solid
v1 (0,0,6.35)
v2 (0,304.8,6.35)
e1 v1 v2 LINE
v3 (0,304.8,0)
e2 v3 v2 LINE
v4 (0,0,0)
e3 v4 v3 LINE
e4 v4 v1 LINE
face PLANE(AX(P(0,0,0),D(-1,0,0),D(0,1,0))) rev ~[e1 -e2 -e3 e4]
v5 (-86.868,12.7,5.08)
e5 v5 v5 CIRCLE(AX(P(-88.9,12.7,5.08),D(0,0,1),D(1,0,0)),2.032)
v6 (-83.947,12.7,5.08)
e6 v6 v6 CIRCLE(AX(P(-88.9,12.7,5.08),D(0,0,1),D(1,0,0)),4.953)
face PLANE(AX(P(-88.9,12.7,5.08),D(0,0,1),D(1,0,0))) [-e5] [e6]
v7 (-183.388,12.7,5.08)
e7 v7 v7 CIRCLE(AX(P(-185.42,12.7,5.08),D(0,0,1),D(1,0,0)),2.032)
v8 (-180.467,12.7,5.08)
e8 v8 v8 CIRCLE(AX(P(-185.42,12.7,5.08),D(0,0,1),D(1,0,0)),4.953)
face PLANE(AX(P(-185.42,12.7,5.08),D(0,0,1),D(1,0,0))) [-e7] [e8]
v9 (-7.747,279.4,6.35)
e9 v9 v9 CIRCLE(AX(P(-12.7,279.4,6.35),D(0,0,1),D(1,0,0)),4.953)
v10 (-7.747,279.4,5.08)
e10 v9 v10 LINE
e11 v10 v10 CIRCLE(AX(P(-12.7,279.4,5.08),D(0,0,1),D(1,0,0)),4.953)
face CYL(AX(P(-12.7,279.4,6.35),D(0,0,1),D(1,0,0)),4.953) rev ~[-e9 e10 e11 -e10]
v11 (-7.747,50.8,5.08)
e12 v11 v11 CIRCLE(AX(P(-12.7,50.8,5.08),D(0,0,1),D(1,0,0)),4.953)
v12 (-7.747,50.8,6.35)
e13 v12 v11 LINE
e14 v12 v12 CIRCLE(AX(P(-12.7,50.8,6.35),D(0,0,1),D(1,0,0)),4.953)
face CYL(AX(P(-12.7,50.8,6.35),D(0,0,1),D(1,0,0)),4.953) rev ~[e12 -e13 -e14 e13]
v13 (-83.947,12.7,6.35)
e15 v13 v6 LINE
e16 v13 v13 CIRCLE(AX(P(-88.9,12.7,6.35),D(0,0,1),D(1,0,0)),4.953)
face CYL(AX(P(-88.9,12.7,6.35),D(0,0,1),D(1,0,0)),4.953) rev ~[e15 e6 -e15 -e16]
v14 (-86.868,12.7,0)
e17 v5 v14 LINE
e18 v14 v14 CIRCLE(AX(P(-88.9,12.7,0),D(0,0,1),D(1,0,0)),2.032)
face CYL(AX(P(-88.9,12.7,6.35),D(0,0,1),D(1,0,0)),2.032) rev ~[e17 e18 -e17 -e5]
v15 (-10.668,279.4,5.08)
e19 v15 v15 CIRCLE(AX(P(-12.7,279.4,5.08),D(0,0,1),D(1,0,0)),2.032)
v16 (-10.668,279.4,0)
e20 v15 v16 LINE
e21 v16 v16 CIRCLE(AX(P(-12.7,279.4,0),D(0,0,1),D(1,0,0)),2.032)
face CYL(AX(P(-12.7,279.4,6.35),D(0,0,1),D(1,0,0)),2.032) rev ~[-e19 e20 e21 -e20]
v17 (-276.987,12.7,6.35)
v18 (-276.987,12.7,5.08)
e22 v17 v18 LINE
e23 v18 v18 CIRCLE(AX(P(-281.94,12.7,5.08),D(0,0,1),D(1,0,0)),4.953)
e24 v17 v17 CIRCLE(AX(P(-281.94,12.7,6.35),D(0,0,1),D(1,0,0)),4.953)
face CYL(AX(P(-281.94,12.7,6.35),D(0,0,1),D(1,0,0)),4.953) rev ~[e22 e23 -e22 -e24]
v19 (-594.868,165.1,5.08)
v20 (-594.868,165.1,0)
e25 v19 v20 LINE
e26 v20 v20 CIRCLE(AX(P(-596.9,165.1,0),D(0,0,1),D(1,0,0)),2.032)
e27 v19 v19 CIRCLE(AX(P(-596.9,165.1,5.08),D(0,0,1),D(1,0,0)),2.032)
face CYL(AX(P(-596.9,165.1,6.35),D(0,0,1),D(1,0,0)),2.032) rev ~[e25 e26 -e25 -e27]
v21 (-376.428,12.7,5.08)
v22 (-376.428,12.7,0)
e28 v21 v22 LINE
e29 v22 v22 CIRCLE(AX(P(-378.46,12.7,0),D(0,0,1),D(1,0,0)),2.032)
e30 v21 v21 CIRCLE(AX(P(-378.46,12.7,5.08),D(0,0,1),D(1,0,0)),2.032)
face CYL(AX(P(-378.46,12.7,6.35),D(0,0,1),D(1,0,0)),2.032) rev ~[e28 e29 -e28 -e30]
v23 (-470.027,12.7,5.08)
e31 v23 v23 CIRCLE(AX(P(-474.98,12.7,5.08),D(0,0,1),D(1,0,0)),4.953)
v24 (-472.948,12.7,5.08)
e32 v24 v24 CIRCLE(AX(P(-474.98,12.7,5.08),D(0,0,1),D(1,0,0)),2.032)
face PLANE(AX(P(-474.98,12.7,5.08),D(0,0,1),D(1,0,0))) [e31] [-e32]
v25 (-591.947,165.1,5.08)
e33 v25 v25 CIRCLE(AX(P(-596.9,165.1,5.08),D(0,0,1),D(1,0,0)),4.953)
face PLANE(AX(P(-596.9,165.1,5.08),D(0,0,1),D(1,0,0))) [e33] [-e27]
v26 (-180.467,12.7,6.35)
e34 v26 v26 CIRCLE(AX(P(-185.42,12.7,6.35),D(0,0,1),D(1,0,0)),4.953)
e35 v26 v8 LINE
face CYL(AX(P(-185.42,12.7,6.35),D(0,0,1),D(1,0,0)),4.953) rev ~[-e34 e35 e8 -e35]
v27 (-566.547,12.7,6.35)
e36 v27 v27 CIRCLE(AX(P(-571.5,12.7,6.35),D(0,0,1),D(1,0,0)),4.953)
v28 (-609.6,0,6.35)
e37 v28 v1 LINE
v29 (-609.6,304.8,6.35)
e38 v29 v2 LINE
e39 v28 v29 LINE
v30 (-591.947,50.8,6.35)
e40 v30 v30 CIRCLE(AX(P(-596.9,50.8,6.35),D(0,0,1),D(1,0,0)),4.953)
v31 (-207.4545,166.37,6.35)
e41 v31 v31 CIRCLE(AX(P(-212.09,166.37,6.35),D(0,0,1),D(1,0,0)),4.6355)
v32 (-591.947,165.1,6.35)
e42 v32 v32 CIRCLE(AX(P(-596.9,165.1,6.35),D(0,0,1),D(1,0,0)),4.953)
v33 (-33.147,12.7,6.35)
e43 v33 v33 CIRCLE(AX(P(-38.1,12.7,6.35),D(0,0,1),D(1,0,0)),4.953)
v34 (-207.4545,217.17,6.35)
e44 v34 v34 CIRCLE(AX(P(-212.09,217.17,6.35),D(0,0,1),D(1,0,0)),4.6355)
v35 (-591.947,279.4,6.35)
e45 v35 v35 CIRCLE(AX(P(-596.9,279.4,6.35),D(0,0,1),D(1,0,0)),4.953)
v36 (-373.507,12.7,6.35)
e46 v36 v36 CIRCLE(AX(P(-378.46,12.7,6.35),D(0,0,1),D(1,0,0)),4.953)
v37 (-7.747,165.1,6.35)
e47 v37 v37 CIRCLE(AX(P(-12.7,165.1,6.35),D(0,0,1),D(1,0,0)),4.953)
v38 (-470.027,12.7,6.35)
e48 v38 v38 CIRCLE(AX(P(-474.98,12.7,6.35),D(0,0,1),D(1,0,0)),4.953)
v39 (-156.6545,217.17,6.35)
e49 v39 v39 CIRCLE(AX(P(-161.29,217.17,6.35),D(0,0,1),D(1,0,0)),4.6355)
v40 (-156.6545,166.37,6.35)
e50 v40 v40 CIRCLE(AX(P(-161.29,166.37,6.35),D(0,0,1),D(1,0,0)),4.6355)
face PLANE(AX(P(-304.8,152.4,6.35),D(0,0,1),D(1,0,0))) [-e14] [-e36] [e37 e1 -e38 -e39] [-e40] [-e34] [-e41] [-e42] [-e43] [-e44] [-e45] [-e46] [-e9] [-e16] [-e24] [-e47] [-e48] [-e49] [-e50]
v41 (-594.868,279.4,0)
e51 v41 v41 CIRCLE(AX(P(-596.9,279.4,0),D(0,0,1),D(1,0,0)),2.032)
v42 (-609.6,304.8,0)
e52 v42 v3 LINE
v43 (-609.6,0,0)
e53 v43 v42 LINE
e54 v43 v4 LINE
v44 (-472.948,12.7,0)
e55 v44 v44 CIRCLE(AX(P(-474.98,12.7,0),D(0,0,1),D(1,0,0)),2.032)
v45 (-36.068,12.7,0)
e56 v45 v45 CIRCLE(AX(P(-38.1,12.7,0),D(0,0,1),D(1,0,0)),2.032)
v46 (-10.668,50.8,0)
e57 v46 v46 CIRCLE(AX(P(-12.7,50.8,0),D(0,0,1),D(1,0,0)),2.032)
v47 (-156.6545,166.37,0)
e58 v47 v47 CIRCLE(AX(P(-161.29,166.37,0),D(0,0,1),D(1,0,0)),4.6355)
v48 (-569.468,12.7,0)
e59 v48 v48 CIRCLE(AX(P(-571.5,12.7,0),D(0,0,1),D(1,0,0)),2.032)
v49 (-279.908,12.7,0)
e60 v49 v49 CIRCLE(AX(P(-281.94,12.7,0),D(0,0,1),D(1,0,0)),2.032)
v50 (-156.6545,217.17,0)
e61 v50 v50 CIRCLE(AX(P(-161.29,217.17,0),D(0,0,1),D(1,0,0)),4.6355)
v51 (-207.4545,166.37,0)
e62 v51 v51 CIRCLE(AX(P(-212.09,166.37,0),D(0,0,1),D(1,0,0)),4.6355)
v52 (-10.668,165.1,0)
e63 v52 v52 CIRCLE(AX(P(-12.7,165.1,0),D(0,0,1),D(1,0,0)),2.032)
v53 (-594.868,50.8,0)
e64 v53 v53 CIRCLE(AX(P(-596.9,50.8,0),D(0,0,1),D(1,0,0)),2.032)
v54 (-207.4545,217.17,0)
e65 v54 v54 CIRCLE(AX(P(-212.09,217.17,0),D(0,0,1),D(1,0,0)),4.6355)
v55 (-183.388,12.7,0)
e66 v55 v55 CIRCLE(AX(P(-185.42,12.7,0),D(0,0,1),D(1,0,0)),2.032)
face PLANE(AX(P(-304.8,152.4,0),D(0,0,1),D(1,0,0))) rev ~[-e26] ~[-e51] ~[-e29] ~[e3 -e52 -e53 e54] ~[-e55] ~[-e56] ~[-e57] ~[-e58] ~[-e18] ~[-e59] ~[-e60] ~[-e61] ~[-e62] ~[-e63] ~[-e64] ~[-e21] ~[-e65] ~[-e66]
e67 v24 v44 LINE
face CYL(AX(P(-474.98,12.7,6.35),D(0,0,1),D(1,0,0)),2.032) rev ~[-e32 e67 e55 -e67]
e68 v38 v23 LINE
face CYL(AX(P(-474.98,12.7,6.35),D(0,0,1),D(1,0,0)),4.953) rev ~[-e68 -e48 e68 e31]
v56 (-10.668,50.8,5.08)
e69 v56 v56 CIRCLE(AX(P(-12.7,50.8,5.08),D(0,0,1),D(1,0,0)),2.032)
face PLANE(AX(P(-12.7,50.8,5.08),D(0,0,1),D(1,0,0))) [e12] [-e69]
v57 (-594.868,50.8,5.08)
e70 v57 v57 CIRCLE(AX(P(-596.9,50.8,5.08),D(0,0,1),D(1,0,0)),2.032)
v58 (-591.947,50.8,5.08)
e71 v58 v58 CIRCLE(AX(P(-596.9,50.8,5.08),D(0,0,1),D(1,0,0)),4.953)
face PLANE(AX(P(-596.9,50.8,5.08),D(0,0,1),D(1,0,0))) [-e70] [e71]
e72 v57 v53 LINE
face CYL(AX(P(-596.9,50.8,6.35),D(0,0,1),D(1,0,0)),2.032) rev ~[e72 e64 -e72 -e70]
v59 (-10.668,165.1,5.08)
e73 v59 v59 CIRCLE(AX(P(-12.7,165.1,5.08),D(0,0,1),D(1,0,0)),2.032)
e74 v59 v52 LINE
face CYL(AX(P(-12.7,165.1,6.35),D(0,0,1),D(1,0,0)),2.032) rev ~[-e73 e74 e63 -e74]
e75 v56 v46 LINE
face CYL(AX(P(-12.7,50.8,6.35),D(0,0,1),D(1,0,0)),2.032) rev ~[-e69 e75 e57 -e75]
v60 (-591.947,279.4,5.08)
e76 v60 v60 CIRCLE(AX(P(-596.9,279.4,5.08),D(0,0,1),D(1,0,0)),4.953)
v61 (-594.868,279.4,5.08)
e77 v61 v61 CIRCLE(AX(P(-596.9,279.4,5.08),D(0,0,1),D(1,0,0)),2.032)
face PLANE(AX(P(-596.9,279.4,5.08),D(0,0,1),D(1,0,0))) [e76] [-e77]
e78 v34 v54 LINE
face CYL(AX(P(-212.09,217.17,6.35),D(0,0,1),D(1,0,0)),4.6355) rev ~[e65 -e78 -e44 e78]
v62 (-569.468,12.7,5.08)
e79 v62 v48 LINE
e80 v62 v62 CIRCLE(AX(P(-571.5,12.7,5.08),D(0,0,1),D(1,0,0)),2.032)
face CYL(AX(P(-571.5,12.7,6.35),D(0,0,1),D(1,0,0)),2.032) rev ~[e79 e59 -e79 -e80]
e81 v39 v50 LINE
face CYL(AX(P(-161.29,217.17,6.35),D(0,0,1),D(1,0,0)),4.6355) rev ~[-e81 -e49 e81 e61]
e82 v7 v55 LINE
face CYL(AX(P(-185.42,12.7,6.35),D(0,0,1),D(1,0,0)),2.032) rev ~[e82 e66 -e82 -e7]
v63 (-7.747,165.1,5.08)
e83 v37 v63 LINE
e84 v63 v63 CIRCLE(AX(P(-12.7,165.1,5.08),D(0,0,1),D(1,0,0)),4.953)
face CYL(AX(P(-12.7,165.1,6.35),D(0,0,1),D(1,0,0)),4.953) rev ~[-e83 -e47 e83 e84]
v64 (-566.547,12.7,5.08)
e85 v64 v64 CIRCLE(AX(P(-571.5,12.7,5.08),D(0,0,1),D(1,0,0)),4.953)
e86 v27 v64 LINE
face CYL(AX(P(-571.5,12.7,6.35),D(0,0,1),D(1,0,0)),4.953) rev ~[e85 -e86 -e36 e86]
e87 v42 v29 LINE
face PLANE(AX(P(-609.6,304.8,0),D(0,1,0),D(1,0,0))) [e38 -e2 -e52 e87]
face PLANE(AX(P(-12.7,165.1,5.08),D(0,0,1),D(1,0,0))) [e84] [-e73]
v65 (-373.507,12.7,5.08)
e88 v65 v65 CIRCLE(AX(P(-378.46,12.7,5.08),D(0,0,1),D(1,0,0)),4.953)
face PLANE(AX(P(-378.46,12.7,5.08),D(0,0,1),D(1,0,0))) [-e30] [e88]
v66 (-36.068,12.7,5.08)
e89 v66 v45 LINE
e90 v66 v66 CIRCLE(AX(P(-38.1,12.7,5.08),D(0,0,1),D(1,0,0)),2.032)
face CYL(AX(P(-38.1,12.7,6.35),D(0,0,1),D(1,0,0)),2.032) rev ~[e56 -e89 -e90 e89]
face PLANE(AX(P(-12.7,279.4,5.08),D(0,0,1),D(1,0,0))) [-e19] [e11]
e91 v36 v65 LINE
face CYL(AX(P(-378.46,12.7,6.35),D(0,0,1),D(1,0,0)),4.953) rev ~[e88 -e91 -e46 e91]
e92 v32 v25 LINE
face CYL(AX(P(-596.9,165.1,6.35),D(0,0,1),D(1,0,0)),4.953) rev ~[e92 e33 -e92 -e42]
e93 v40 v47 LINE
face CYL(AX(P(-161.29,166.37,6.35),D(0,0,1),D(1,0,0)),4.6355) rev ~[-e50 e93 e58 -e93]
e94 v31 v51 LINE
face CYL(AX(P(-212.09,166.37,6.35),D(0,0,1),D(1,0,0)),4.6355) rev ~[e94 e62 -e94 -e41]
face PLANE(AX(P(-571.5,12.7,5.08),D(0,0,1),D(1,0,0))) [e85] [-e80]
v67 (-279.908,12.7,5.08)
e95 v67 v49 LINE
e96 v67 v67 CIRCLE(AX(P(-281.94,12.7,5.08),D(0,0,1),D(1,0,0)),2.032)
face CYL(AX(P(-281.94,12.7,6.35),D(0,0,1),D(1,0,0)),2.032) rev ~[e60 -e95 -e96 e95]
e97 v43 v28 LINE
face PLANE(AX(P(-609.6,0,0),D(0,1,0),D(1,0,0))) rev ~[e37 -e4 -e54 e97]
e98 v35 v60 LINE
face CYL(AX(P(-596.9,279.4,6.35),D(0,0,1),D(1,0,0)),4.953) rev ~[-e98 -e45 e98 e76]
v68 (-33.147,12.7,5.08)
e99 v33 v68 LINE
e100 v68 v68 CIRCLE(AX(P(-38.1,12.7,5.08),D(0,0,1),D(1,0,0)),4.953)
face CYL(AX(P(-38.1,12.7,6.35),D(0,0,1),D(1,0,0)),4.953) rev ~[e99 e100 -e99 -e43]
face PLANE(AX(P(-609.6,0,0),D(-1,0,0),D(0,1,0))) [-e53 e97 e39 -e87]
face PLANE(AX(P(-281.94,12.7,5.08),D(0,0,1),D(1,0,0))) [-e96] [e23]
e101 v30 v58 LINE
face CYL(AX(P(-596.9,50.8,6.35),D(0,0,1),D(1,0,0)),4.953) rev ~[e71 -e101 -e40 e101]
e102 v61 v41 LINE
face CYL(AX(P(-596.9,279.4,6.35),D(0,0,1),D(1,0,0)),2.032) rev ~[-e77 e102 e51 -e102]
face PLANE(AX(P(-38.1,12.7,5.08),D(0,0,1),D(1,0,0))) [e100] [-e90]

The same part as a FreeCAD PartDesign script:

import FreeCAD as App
import Part
import Sketcher

V = App.Vector
Q = App.Units.Quantity


def add_polygon(sketch, points):
    """Adds a closed chain of lines whose ends are joined by coincident constraints."""
    first, n = sketch.GeometryCount, len(points)
    for a, b in zip(points, points[1:] + points[:1]):
        sketch.addGeometry(Part.LineSegment(App.Vector(*a, 0), App.Vector(*b, 0)), False)
    for i in range(n):
        sketch.addConstraint(Sketcher.Constraint("Coincident", first + i, 2, first + (i + 1) % n, 1))

doc = App.newDocument("Part")
body = doc.addObject("PartDesign::Body", "Body")

# Sketch on XY plane
sketch1 = body.newObject("Sketcher::SketchObject", "Sketch")
sketch1.AttachmentSupport = (doc.getObject("XY_Plane"), [""])
sketch1.MapMode = "FlatFace"
add_polygon(sketch1, [(-610, 305), (-610, 0), (0, 0), (0, 305)])  # lines 0-3
sketch1.addConstraint([
    Sketcher.Constraint("Vertical", 0),
    Sketcher.Constraint("Horizontal", 1),
    Sketcher.Constraint("Vertical", 2),
    Sketcher.Constraint("Horizontal", 3),
    Sketcher.Constraint("Coincident", 1, 2, -1, 1),
    Sketcher.Constraint("DistanceX", 1, 1, 1, 2, Q("24 in")),
    Sketcher.Constraint("DistanceY", 0, 2, 0, 1, Q("12 in")),
])
pad1 = body.newObject("PartDesign::Pad", "Pad")
pad1.Profile = sketch1
pad1.Length = Q("0.25 in")

# Sketch on XY plane
sketch2 = body.newObject("Sketcher::SketchObject", "Sketch001")
sketch2.AttachmentSupport = (doc.getObject("XY_Plane"), [""])
sketch2.MapMode = "FlatFace"
sketch2.AttachmentOffset = App.Placement(V(0, 0, 0.25 * 25.4), App.Rotation())
sketch2.addGeometry([
    Part.Circle(V(-161.3, 217.2, 0), V(0, 0, 1), 4.6),
    Part.Circle(V(-212.1, 217.2, 0), V(0, 0, 1), 4.6),
    Part.Circle(V(-161.3, 166.4, 0), V(0, 0, 1), 4.6),
    Part.Circle(V(-212.1, 166.4, 0), V(0, 0, 1), 4.6),
], False)
sketch2.addConstraint([
    Sketcher.Constraint("Equal", 0, 1),
    Sketcher.Constraint("Equal", 1, 2),
    Sketcher.Constraint("Equal", 2, 3),
    Sketcher.Constraint("Horizontal", 0, 3, 1, 3),
    Sketcher.Constraint("Horizontal", 2, 3, 3, 3),
    Sketcher.Constraint("Vertical", 0, 3, 2, 3),
    Sketcher.Constraint("Vertical", 1, 3, 3, 3),
    Sketcher.Constraint("Diameter", 0, Q("0.365 in")),
    Sketcher.Constraint("DistanceX", 1, 3, 0, 3, Q("2 in")),
    Sketcher.Constraint("DistanceY", 2, 3, 0, 3, Q("2 in")),
    Sketcher.Constraint("DistanceX", 0, 3, -1, 1, Q("6.35 in")),
    Sketcher.Constraint("DistanceY", -1, 1, 0, 3, Q("8.55 in")),
])
pocket1 = body.newObject("PartDesign::Pocket", "Pocket")
pocket1.Profile = sketch2
pocket1.Type = "ThroughAll"

# Sketch on XY plane
sketch3 = body.newObject("Sketcher::SketchObject", "Sketch002")
sketch3.AttachmentSupport = (doc.getObject("XY_Plane"), [""])
sketch3.MapMode = "FlatFace"
sketch3.AttachmentOffset = App.Placement(V(0, 0, 0.25 * 25.4), App.Rotation())
sketch3.addGeometry([
    Part.Circle(V(-596.9, 279.4, 0), V(0, 0, 1), 2),  # 0
    Part.Circle(V(-596.9, 165.1, 0), V(0, 0, 1), 2),  # 1
    Part.Circle(V(-596.9, 50.8, 0), V(0, 0, 1), 2),  # 2
    Part.Circle(V(-12.7, 50.8, 0), V(0, 0, 1), 2),  # 3
    Part.Circle(V(-12.7, 165.1, 0), V(0, 0, 1), 2),  # 4
    Part.Circle(V(-12.7, 279.4, 0), V(0, 0, 1), 2),  # 5
], False)
sketch3.addConstraint([
    Sketcher.Constraint("Equal", 0, 1),
    Sketcher.Constraint("Equal", 1, 2),
    Sketcher.Constraint("Equal", 2, 3),
    Sketcher.Constraint("Equal", 3, 4),
    Sketcher.Constraint("Equal", 4, 5),
    Sketcher.Constraint("Horizontal", 2, 3, 3, 3),
    Sketcher.Constraint("Horizontal", 1, 3, 4, 3),
    Sketcher.Constraint("Horizontal", 0, 3, 5, 3),
    Sketcher.Constraint("Vertical", 0, 3, 1, 3),
    Sketcher.Constraint("Vertical", 1, 3, 2, 3),
    Sketcher.Constraint("Vertical", 3, 3, 4, 3),
    Sketcher.Constraint("Vertical", 4, 3, 5, 3),
    Sketcher.Constraint("Diameter", 0, Q("0.16 in")),
    Sketcher.Constraint("DistanceY", -1, 1, 0, 3, Q("11 in")),
    Sketcher.Constraint("DistanceY", -1, 1, 2, 3, Q("2 in")),
    Sketcher.Constraint("DistanceX", 2, 3, 3, 3, Q("23 in")),
    Sketcher.Constraint("DistanceX", 0, 3, -1, 1, Q("23.5 in")),
    Sketcher.Constraint("DistanceY", -1, 1, 1, 3, Q("6.5 in")),
])
pocket2 = body.newObject("PartDesign::Pocket", "Pocket001")
pocket2.Profile = sketch3
pocket2.Type = "ThroughAll"

# Sketch on XY plane
sketch4 = body.newObject("Sketcher::SketchObject", "Sketch003")
sketch4.AttachmentSupport = (doc.getObject("XY_Plane"), [""])
sketch4.MapMode = "FlatFace"
sketch4.AttachmentOffset = App.Placement(V(0, 0, 0.25 * 25.4), App.Rotation())
sketch4.addGeometry([
    Part.Circle(V(-571.5, 12.7, 0), V(0, 0, 1), 2),  # 0
    Part.Circle(V(-38.1, 12.7, 0), V(0, 0, 1), 2),  # 1
    Part.Circle(V(-475, 12.7, 0), V(0, 0, 1), 2),  # 2
    Part.Circle(V(-378.5, 12.7, 0), V(0, 0, 1), 2),  # 3
    Part.Circle(V(-281.9, 12.7, 0), V(0, 0, 1), 2),  # 4
    Part.Circle(V(-185.4, 12.7, 0), V(0, 0, 1), 2),  # 5
    Part.Circle(V(-88.9, 12.7, 0), V(0, 0, 1), 2),  # 6
], False)
sketch4.addConstraint([
    Sketcher.Constraint("Equal", 0, 1),
    Sketcher.Constraint("Equal", 1, 2),
    Sketcher.Constraint("Equal", 2, 3),
    Sketcher.Constraint("Equal", 3, 4),
    Sketcher.Constraint("Equal", 4, 5),
    Sketcher.Constraint("Equal", 5, 6),
    Sketcher.Constraint("Horizontal", 0, 3, 1, 3),
    Sketcher.Constraint("Horizontal", 1, 3, 2, 3),
    Sketcher.Constraint("Horizontal", 2, 3, 3, 3),
    Sketcher.Constraint("Horizontal", 3, 3, 4, 3),
    Sketcher.Constraint("Horizontal", 4, 3, 5, 3),
    Sketcher.Constraint("Horizontal", 5, 3, 6, 3),
    Sketcher.Constraint("Diameter", 0, Q("0.16 in")),
    Sketcher.Constraint("DistanceX", 0, 3, 1, 3, Q("21 in")),
    Sketcher.Constraint("DistanceX", 6, 3, 1, 3, Q("2 in")),
    Sketcher.Constraint("DistanceX", 0, 3, -1, 1, Q("22.5 in")),
    Sketcher.Constraint("DistanceY", -1, 1, 0, 3, Q("0.5 in")),
    Sketcher.Constraint("DistanceX", 2, 3, -1, 1, Q("18.7 in")),
    Sketcher.Constraint("DistanceX", 3, 3, -1, 1, Q("14.9 in")),
    Sketcher.Constraint("DistanceX", 4, 3, -1, 1, Q("11.1 in")),
    Sketcher.Constraint("DistanceX", 5, 3, -1, 1, Q("7.3 in")),
])
pocket3 = body.newObject("PartDesign::Pocket", "Pocket002")
pocket3.Profile = sketch4
pocket3.Type = "ThroughAll"

# Sketch on XY plane
sketch5 = body.newObject("Sketcher::SketchObject", "Sketch004")
sketch5.AttachmentSupport = (doc.getObject("XY_Plane"), [""])
sketch5.MapMode = "FlatFace"
sketch5.AttachmentOffset = App.Placement(V(0, 0, 0.25 * 25.4), App.Rotation())
sketch5.addGeometry([
    Part.Circle(V(-596.9, 279.4, 0), V(0, 0, 1), 5),  # 0
    Part.Circle(V(-596.9, 165.1, 0), V(0, 0, 1), 5),  # 1
    Part.Circle(V(-596.9, 50.8, 0), V(0, 0, 1), 5),  # 2
    Part.Circle(V(-12.7, 50.8, 0), V(0, 0, 1), 5),  # 3
    Part.Circle(V(-12.7, 165.1, 0), V(0, 0, 1), 5),  # 4
    Part.Circle(V(-12.7, 279.4, 0), V(0, 0, 1), 5),  # 5
], False)
sketch5.addConstraint([
    Sketcher.Constraint("Equal", 0, 1),
    Sketcher.Constraint("Equal", 1, 2),
    Sketcher.Constraint("Equal", 2, 3),
    Sketcher.Constraint("Equal", 3, 4),
    Sketcher.Constraint("Equal", 4, 5),
    Sketcher.Constraint("Horizontal", 2, 3, 3, 3),
    Sketcher.Constraint("Horizontal", 1, 3, 4, 3),
    Sketcher.Constraint("Horizontal", 0, 3, 5, 3),
    Sketcher.Constraint("Vertical", 0, 3, 1, 3),
    Sketcher.Constraint("Vertical", 1, 3, 2, 3),
    Sketcher.Constraint("Vertical", 3, 3, 4, 3),
    Sketcher.Constraint("Vertical", 4, 3, 5, 3),
    Sketcher.Constraint("Diameter", 0, Q("0.39 in")),
    Sketcher.Constraint("DistanceY", -1, 1, 0, 3, Q("11 in")),
    Sketcher.Constraint("DistanceY", -1, 1, 2, 3, Q("2 in")),
    Sketcher.Constraint("DistanceX", 2, 3, 3, 3, Q("23 in")),
    Sketcher.Constraint("DistanceX", 0, 3, -1, 1, Q("23.5 in")),
    Sketcher.Constraint("DistanceY", -1, 1, 1, 3, Q("6.5 in")),
])
pocket4 = body.newObject("PartDesign::Pocket", "Pocket003")
pocket4.Profile = sketch5
pocket4.Length = Q("0.05 in")

# Sketch on XY plane
sketch6 = body.newObject("Sketcher::SketchObject", "Sketch005")
sketch6.AttachmentSupport = (doc.getObject("XY_Plane"), [""])
sketch6.MapMode = "FlatFace"
sketch6.AttachmentOffset = App.Placement(V(0, 0, 0.25 * 25.4), App.Rotation())
sketch6.addGeometry([
    Part.Circle(V(-571.5, 12.7, 0), V(0, 0, 1), 5),  # 0
    Part.Circle(V(-475, 12.7, 0), V(0, 0, 1), 5),  # 1
    Part.Circle(V(-378.5, 12.7, 0), V(0, 0, 1), 5),  # 2
    Part.Circle(V(-281.9, 12.7, 0), V(0, 0, 1), 5),  # 3
    Part.Circle(V(-185.4, 12.7, 0), V(0, 0, 1), 5),  # 4
    Part.Circle(V(-88.9, 12.7, 0), V(0, 0, 1), 5),  # 5
    Part.Circle(V(-38.1, 12.7, 0), V(0, 0, 1), 5),  # 6
], False)
sketch6.addConstraint([
    Sketcher.Constraint("Equal", 0, 1),
    Sketcher.Constraint("Equal", 1, 2),
    Sketcher.Constraint("Equal", 2, 3),
    Sketcher.Constraint("Equal", 3, 4),
    Sketcher.Constraint("Equal", 4, 5),
    Sketcher.Constraint("Equal", 5, 6),
    Sketcher.Constraint("Horizontal", 0, 3, 1, 3),
    Sketcher.Constraint("Horizontal", 1, 3, 2, 3),
    Sketcher.Constraint("Horizontal", 2, 3, 3, 3),
    Sketcher.Constraint("Horizontal", 3, 3, 4, 3),
    Sketcher.Constraint("Horizontal", 4, 3, 5, 3),
    Sketcher.Constraint("Horizontal", 5, 3, 6, 3),
    Sketcher.Constraint("Diameter", 0, Q("0.39 in")),
    Sketcher.Constraint("DistanceX", 0, 3, 5, 3, Q("19 in")),
    Sketcher.Constraint("DistanceX", 5, 3, 6, 3, Q("2 in")),
    Sketcher.Constraint("DistanceX", 0, 3, -1, 1, Q("22.5 in")),
    Sketcher.Constraint("DistanceY", -1, 1, 0, 3, Q("0.5 in")),
    Sketcher.Constraint("DistanceX", 1, 3, -1, 1, Q("18.7 in")),
    Sketcher.Constraint("DistanceX", 2, 3, -1, 1, Q("14.9 in")),
    Sketcher.Constraint("DistanceX", 3, 3, -1, 1, Q("11.1 in")),
    Sketcher.Constraint("DistanceX", 4, 3, -1, 1, Q("7.3 in")),
])
pocket5 = body.newObject("PartDesign::Pocket", "Pocket004")
pocket5.Profile = sketch6
pocket5.Length = Q("0.05 in")

doc.recompute()
